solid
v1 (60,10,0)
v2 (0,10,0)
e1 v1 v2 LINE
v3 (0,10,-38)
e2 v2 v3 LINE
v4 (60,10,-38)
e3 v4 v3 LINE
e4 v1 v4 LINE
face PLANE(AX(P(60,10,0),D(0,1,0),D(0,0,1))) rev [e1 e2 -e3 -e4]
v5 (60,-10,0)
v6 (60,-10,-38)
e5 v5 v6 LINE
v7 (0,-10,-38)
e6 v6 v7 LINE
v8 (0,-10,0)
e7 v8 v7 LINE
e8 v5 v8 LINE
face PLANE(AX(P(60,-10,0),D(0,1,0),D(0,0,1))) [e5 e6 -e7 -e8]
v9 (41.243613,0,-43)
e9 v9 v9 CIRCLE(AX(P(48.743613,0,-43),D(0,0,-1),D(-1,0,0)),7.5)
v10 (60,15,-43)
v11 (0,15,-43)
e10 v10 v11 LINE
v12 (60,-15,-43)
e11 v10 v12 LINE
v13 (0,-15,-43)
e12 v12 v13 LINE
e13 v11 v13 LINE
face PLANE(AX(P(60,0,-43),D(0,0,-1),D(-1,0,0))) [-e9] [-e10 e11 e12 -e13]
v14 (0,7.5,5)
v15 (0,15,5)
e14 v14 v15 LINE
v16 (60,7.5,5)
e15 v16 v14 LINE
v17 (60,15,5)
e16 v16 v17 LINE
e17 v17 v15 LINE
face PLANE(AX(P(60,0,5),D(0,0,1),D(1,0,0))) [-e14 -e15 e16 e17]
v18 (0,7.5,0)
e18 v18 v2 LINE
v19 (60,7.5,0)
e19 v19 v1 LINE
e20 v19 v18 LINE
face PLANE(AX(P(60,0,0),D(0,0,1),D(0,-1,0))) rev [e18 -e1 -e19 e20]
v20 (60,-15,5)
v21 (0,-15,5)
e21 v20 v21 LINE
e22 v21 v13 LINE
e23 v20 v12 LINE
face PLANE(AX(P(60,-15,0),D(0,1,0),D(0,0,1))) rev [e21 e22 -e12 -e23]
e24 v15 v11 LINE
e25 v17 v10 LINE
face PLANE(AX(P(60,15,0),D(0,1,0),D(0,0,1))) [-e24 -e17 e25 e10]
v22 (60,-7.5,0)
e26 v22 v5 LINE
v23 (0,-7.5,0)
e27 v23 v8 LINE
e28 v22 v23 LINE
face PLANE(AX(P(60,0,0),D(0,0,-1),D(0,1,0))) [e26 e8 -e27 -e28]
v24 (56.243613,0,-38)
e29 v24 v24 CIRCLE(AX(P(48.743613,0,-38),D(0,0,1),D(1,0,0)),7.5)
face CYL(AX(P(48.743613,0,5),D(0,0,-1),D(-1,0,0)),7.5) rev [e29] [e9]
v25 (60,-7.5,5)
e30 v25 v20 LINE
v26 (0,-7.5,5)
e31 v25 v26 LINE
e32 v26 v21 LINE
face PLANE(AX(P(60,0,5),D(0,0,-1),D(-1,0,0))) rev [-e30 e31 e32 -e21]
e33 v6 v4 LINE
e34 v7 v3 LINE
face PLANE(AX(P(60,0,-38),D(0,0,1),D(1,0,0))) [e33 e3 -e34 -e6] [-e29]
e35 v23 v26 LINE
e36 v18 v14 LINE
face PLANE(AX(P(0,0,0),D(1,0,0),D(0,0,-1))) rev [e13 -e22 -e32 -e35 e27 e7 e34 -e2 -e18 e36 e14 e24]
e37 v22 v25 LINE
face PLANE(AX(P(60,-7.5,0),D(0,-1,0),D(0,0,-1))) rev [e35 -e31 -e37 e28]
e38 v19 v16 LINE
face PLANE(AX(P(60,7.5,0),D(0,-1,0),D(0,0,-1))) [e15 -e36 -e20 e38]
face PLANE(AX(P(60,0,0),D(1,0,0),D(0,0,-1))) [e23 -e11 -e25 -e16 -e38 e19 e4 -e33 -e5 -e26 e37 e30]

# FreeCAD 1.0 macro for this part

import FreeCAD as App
import Part
import Sketcher

V = App.Vector
Q = App.Units.Quantity

doc = App.newDocument("Part")
body = doc.addObject("PartDesign::Body", "Body")

# Sketch on YZ plane
sketch1 = body.newObject("Sketcher::SketchObject", "Sketch")
sketch1.AttachmentSupport = (doc.getObject("YZ_Plane"), [""])
sketch1.MapMode = "FlatFace"
sketch1.addGeometry(Part.LineSegment(V(7.5, 5, 0), V(7.5, 0, 0)), False)
sketch1.addGeometry(Part.LineSegment(V(7.5, 0, 0), V(10, 0, 0)), False)
sketch1.addGeometry(Part.LineSegment(V(10, 0, 0), V(10, -38, 0)), False)
sketch1.addGeometry(Part.LineSegment(V(10, -38, 0), V(-10, -38, 0)), False)
sketch1.addGeometry(Part.LineSegment(V(-10, -38, 0), V(-10, 0, 0)), False)
sketch1.addGeometry(Part.LineSegment(V(-10, 0, 0), V(-7.5, 0, 0)), False)
sketch1.addGeometry(Part.LineSegment(V(-7.5, 0, 0), V(-7.5, 5, 0)), False)
sketch1.addGeometry(Part.LineSegment(V(-7.5, 5, 0), V(-15, 5, 0)), False)
sketch1.addGeometry(Part.LineSegment(V(-15, 5, 0), V(-15, -43, 0)), False)
sketch1.addGeometry(Part.LineSegment(V(-15, -43, 0), V(15, -43, 0)), False)
sketch1.addGeometry(Part.LineSegment(V(15, -43, 0), V(15, 5, 0)), False)
sketch1.addGeometry(Part.LineSegment(V(15, 5, 0), V(7.5, 5, 0)), False)
sketch1.addConstraint(Sketcher.Constraint("Coincident", 0, 2, 1, 1))
sketch1.addConstraint(Sketcher.Constraint("Coincident", 1, 2, 2, 1))
sketch1.addConstraint(Sketcher.Constraint("Coincident", 2, 2, 3, 1))
sketch1.addConstraint(Sketcher.Constraint("Coincident", 3, 2, 4, 1))
sketch1.addConstraint(Sketcher.Constraint("Coincident", 4, 2, 5, 1))
sketch1.addConstraint(Sketcher.Constraint("Coincident", 5, 2, 6, 1))
sketch1.addConstraint(Sketcher.Constraint("Coincident", 6, 2, 7, 1))
sketch1.addConstraint(Sketcher.Constraint("Coincident", 7, 2, 8, 1))
sketch1.addConstraint(Sketcher.Constraint("Coincident", 8, 2, 9, 1))
sketch1.addConstraint(Sketcher.Constraint("Coincident", 9, 2, 10, 1))
sketch1.addConstraint(Sketcher.Constraint("Coincident", 10, 2, 11, 1))
sketch1.addConstraint(Sketcher.Constraint("Coincident", 11, 2, 0, 1))
sketch1.addConstraint(Sketcher.Constraint("Vertical", 0))
sketch1.addConstraint(Sketcher.Constraint("Horizontal", 1))
sketch1.addConstraint(Sketcher.Constraint("Vertical", 2))
sketch1.addConstraint(Sketcher.Constraint("Horizontal", 3))
sketch1.addConstraint(Sketcher.Constraint("Vertical", 4))
sketch1.addConstraint(Sketcher.Constraint("Horizontal", 5))
sketch1.addConstraint(Sketcher.Constraint("Vertical", 6))
sketch1.addConstraint(Sketcher.Constraint("Horizontal", 7))
sketch1.addConstraint(Sketcher.Constraint("Vertical", 8))
sketch1.addConstraint(Sketcher.Constraint("Horizontal", 9))
sketch1.addConstraint(Sketcher.Constraint("Vertical", 10))
sketch1.addConstraint(Sketcher.Constraint("Horizontal", 11))
sketch1.addConstraint(Sketcher.Constraint("Symmetric", 1, 2, 4, 2, -1, 1))
sketch1.addConstraint(Sketcher.Constraint("Symmetric", 0, 2, 5, 2, -2))
sketch1.addConstraint(Sketcher.Constraint("Symmetric", 7, 2, 10, 2, -2))
sketch1.addConstraint(Sketcher.Constraint("DistanceX", 3, 2, 3, 1, Q("20 mm")))
sketch1.addConstraint(Sketcher.Constraint("DistanceX", 9, 1, 9, 2, Q("30 mm")))
sketch1.addConstraint(Sketcher.Constraint("DistanceY", 0, 2, 0, 1, Q("5 mm")))
sketch1.addConstraint(Sketcher.Constraint("DistanceY", 2, 2, 2, 1, Q("38 mm")))
sketch1.addConstraint(Sketcher.Constraint("DistanceY", 8, 2, 8, 1, Q("48 mm")))
sketch1.addConstraint(Sketcher.Constraint("DistanceX", 1, 1, 1, 2, Q("2.5 mm")))
pad1 = body.newObject("PartDesign::Pad", "Pad")
pad1.Profile = sketch1
pad1.Length = 60

# Sketch on XY plane
sketch2 = body.newObject("Sketcher::SketchObject", "Sketch001")
sketch2.AttachmentSupport = (doc.getObject("XY_Plane"), [""])
sketch2.MapMode = "FlatFace"
sketch2.AttachmentOffset = App.Placement(V(0, 0, -43), App.Rotation())
sketch2.addGeometry(Part.Circle(V(48.743613, 0, 0), V(0, 0, 1), 7.5), False)
sketch2.addConstraint(Sketcher.Constraint("PointOnObject", 0, 3, -1))
sketch2.addConstraint(Sketcher.Constraint("Diameter", 0, Q("15 mm")))
sketch2.addConstraint(Sketcher.Constraint("DistanceX", -1, 1, 0, 3, Q("48.743613 mm")))
pocket1 = body.newObject("PartDesign::Pocket", "Pocket")
pocket1.Profile = sketch2
pocket1.Type = "ThroughAll"
pocket1.Reversed = True

doc.recompute()
